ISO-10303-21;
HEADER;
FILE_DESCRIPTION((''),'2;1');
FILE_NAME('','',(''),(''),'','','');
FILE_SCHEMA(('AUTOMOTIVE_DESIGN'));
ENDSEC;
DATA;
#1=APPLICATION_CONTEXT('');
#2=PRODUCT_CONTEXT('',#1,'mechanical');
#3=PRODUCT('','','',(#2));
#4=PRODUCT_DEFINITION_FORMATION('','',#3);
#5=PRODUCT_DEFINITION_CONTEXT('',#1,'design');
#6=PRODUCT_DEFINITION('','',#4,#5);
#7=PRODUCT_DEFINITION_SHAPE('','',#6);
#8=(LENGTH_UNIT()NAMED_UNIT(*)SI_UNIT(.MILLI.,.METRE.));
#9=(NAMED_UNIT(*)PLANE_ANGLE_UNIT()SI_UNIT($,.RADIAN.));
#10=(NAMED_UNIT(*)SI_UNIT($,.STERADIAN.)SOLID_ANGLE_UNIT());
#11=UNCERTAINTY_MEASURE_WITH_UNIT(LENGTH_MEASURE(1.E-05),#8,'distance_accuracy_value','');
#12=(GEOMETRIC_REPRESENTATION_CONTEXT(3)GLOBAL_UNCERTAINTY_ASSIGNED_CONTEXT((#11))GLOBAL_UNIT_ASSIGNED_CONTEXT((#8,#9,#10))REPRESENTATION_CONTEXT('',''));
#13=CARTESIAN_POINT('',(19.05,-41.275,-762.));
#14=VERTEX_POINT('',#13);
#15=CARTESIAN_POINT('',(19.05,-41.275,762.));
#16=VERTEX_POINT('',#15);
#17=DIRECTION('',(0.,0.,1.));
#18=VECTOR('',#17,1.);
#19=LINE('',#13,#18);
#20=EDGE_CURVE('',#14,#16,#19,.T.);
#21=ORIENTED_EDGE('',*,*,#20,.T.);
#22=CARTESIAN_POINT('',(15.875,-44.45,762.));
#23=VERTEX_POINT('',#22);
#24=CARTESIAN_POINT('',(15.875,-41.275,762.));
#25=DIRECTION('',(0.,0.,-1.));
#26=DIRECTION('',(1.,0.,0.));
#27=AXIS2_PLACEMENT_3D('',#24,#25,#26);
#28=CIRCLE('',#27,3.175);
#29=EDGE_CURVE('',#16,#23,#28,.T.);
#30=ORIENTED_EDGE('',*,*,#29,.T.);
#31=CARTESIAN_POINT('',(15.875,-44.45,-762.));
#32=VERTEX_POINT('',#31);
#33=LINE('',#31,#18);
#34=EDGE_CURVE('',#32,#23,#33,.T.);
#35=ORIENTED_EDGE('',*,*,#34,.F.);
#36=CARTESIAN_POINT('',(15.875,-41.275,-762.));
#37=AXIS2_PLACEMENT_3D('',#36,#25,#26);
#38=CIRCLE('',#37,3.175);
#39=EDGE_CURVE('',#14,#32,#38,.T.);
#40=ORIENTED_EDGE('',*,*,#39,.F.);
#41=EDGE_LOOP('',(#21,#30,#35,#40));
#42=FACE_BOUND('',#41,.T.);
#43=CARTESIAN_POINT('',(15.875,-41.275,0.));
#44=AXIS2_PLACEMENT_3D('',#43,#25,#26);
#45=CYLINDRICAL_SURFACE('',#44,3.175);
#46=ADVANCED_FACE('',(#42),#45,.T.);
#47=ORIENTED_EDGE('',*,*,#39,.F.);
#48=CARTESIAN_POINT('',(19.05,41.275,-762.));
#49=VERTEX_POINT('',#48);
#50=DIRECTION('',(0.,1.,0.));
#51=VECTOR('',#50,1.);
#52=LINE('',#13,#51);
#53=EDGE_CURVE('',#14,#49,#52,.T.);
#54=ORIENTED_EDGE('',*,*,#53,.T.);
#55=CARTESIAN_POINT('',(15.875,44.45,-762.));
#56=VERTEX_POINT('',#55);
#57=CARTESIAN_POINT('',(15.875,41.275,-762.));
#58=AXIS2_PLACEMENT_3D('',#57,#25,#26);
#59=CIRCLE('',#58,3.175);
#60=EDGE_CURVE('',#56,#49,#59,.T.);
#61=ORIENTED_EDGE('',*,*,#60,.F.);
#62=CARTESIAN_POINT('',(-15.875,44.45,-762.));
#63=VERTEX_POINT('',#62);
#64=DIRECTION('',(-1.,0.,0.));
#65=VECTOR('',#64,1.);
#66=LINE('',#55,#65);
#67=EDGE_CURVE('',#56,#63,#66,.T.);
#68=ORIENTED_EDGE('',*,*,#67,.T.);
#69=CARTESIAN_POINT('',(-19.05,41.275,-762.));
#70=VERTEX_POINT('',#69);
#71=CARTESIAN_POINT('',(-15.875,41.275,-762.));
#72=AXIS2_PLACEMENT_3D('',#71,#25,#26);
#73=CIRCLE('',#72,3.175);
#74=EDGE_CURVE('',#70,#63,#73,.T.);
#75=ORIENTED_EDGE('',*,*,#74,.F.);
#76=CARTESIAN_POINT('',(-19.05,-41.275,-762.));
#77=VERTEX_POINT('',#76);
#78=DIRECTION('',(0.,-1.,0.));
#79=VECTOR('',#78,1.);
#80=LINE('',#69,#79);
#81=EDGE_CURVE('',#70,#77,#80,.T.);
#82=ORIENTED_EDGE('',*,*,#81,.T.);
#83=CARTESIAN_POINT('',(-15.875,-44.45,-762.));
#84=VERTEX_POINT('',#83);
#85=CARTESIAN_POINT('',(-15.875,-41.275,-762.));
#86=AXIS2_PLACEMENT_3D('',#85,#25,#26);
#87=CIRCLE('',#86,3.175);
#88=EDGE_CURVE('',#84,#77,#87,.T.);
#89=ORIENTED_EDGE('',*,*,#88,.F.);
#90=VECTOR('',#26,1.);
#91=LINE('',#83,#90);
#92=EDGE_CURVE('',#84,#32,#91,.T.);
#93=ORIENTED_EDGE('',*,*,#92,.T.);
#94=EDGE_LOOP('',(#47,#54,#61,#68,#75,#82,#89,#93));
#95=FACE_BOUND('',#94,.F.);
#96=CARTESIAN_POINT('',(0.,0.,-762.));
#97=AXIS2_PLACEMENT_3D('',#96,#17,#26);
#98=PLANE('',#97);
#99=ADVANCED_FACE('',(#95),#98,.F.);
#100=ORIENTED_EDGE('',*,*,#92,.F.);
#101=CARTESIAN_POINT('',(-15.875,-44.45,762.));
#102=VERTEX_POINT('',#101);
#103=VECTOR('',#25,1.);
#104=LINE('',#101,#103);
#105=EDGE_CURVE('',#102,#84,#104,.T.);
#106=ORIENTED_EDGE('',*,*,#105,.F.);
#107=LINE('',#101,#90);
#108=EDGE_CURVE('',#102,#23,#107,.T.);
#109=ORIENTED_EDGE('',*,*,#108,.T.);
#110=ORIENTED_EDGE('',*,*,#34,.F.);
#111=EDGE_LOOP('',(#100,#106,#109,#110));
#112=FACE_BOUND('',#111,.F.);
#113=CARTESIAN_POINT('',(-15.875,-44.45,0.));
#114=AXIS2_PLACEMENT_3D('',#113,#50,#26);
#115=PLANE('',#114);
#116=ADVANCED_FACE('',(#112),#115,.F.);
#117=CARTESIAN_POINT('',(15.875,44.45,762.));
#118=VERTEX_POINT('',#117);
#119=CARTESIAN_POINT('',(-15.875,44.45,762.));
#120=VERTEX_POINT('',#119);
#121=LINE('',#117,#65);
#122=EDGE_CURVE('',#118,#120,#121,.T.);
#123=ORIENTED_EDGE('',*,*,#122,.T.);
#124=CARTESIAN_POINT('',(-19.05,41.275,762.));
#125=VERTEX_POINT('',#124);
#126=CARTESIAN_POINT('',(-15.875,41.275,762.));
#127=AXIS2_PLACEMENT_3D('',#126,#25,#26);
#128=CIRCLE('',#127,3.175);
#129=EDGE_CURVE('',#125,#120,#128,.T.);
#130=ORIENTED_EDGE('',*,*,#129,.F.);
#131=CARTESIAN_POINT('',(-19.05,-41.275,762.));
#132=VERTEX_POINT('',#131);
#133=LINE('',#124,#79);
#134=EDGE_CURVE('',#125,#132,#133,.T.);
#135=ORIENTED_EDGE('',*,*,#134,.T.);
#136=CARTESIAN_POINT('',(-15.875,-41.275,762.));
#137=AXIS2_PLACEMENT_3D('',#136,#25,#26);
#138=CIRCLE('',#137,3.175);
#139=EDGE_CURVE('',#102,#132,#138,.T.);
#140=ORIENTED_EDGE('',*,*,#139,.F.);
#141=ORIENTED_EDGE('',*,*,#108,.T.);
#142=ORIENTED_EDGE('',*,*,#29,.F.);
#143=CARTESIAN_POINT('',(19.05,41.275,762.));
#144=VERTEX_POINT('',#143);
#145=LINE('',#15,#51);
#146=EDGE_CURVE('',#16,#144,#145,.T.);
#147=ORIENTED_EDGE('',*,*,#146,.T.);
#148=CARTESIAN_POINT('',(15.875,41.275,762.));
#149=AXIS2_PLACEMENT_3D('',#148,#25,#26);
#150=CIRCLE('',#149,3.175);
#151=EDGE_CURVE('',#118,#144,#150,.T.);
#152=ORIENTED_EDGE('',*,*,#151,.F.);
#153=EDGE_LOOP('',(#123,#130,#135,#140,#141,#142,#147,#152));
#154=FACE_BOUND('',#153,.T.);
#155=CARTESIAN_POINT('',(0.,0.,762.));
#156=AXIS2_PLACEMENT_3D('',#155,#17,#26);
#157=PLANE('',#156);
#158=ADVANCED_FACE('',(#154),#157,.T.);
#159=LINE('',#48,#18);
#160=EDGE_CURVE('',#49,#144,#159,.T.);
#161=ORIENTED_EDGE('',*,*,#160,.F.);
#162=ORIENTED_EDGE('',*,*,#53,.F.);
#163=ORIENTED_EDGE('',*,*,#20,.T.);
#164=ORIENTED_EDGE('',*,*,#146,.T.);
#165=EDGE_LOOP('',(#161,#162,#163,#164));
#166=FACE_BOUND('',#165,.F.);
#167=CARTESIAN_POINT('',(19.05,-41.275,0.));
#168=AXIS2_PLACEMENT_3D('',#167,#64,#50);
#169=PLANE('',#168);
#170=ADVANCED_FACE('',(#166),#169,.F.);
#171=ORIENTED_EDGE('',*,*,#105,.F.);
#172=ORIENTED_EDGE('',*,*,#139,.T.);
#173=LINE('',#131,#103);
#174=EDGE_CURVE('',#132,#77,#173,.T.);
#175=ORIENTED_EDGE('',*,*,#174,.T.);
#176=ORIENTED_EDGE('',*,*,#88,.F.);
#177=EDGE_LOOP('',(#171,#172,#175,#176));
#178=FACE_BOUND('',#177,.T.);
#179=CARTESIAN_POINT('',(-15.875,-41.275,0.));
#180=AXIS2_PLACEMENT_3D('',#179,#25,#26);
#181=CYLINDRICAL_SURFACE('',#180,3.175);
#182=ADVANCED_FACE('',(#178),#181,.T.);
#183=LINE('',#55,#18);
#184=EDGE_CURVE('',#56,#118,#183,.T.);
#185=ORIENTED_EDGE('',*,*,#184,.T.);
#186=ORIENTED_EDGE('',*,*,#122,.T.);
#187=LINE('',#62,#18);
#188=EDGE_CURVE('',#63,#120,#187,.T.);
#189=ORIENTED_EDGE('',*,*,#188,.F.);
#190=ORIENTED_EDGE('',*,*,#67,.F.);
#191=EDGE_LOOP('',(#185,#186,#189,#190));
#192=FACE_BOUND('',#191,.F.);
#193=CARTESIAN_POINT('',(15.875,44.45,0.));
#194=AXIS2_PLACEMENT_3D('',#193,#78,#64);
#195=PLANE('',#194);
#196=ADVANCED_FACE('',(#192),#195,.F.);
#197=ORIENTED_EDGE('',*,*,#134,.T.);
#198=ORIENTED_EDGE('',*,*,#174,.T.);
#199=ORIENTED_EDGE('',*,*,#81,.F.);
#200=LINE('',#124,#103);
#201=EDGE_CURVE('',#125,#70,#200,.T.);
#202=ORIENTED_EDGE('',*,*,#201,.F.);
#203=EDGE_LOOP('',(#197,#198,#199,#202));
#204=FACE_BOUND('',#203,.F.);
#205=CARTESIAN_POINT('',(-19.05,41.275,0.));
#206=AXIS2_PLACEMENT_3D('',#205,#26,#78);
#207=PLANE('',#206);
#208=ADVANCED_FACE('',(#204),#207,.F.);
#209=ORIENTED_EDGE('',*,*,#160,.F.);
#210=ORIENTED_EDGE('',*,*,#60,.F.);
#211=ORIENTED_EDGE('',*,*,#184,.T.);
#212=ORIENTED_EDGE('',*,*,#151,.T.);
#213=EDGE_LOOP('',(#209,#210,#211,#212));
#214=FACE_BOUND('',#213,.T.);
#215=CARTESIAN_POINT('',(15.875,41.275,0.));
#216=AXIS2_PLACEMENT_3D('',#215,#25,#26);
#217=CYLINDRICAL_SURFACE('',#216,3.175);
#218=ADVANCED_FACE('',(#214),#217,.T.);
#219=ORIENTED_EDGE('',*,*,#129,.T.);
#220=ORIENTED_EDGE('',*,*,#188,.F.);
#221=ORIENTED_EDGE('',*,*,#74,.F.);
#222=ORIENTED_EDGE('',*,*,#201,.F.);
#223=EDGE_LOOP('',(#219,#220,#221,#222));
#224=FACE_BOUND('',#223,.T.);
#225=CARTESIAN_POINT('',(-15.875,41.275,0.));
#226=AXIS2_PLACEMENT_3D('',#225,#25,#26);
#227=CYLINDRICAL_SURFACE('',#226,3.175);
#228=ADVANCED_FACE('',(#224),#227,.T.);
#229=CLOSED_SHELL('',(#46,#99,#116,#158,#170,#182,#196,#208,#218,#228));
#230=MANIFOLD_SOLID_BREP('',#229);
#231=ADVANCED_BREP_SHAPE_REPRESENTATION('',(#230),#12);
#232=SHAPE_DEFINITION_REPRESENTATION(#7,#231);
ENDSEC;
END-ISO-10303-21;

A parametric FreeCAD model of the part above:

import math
import FreeCAD as App
import Part
import Sketcher
from FreeCAD import Vector
Q = App.Units.Quantity

doc = App.newDocument("Part")
params = doc.addObject("Spreadsheet::Sheet", "Params")
for row, (alias, value) in enumerate([
    ("sketch1_height", "3.25 in"),
    ("pad1_length", "60 in"),
], start=1):
    params.set(f"A{row}", alias)
    params.set(f"B{row}", "=" + value)
    params.setAlias(f"B{row}", alias)

body = doc.addObject("PartDesign::Body", "Body")

# Sketch on XY plane
sketch1 = body.newObject("Sketcher::SketchObject", "Sketch")
sketch1.AttachmentSupport = (doc.getObject("XY_Plane"), [""])
sketch1.MapMode = "FlatFace"
sketch1.addGeometry(Part.ArcOfCircle(Part.Circle(Vector(-15.9, -41.3, 0), Vector(0, 0, 1), 3.2), math.radians(180), math.radians(270)), False)
sketch1.addGeometry(Part.LineSegment(Vector(-15.9, -44.5, 0), Vector(15.9, -44.5, 0)), False)
sketch1.addGeometry(Part.ArcOfCircle(Part.Circle(Vector(15.9, -41.3, 0), Vector(0, 0, 1), 3.2), math.radians(-90), math.radians(0)), False)
sketch1.addGeometry(Part.LineSegment(Vector(19.1, -41.3, 0), Vector(19.1, 41.3, 0)), False)
sketch1.addGeometry(Part.ArcOfCircle(Part.Circle(Vector(15.9, 41.3, 0), Vector(0, 0, 1), 3.2), math.radians(0), math.radians(90)), False)
sketch1.addGeometry(Part.LineSegment(Vector(15.9, 44.5, 0), Vector(-15.9, 44.5, 0)), False)
sketch1.addGeometry(Part.ArcOfCircle(Part.Circle(Vector(-15.9, 41.3, 0), Vector(0, 0, 1), 3.2), math.radians(90), math.radians(180)), False)
sketch1.addGeometry(Part.LineSegment(Vector(-19.1, 41.3, 0), Vector(-19.1, -41.3, 0)), False)
sketch1.addConstraint(Sketcher.Constraint("Tangent", 0, 2, 1, 1))
sketch1.addConstraint(Sketcher.Constraint("Tangent", 1, 2, 2, 1))
sketch1.addConstraint(Sketcher.Constraint("Tangent", 2, 2, 3, 1))
sketch1.addConstraint(Sketcher.Constraint("Tangent", 3, 2, 4, 1))
sketch1.addConstraint(Sketcher.Constraint("Tangent", 4, 2, 5, 1))
sketch1.addConstraint(Sketcher.Constraint("Tangent", 5, 2, 6, 1))
sketch1.addConstraint(Sketcher.Constraint("Tangent", 6, 2, 7, 1))
sketch1.addConstraint(Sketcher.Constraint("Tangent", 7, 2, 0, 1))
sketch1.addConstraint(Sketcher.Constraint("Horizontal", 1))
sketch1.addConstraint(Sketcher.Constraint("Vertical", 3))
sketch1.addConstraint(Sketcher.Constraint("Horizontal", 5))
sketch1.addConstraint(Sketcher.Constraint("Vertical", 7))
sketch1.addConstraint(Sketcher.Constraint("Equal", 0, 2))
sketch1.addConstraint(Sketcher.Constraint("Equal", 2, 4))
sketch1.addConstraint(Sketcher.Constraint("Equal", 4, 6))
sketch1.addConstraint(Sketcher.Constraint("Symmetric", 0, 3, 4, 3, -1, 1))
sketch1.addConstraint(Sketcher.Constraint("DistanceX", -1, 1, 2, 2, Q("0.75 in")))
sketch1.addConstraint(Sketcher.Constraint("DistanceX", 0, 3, -1, 1, Q("0.625 in")))
sketch1.addConstraint(Sketcher.Constraint("DistanceY", 3, 1, 3, 2, Q("3.25 in")))
sketch1.setExpression("Constraints[18]", "Params.sketch1_height")
pad1 = body.newObject("PartDesign::Pad", "Pad")
pad1.Profile = sketch1
pad1.setExpression("Length", "Params.pad1_length")
pad1.Midplane = True

doc.recompute()
